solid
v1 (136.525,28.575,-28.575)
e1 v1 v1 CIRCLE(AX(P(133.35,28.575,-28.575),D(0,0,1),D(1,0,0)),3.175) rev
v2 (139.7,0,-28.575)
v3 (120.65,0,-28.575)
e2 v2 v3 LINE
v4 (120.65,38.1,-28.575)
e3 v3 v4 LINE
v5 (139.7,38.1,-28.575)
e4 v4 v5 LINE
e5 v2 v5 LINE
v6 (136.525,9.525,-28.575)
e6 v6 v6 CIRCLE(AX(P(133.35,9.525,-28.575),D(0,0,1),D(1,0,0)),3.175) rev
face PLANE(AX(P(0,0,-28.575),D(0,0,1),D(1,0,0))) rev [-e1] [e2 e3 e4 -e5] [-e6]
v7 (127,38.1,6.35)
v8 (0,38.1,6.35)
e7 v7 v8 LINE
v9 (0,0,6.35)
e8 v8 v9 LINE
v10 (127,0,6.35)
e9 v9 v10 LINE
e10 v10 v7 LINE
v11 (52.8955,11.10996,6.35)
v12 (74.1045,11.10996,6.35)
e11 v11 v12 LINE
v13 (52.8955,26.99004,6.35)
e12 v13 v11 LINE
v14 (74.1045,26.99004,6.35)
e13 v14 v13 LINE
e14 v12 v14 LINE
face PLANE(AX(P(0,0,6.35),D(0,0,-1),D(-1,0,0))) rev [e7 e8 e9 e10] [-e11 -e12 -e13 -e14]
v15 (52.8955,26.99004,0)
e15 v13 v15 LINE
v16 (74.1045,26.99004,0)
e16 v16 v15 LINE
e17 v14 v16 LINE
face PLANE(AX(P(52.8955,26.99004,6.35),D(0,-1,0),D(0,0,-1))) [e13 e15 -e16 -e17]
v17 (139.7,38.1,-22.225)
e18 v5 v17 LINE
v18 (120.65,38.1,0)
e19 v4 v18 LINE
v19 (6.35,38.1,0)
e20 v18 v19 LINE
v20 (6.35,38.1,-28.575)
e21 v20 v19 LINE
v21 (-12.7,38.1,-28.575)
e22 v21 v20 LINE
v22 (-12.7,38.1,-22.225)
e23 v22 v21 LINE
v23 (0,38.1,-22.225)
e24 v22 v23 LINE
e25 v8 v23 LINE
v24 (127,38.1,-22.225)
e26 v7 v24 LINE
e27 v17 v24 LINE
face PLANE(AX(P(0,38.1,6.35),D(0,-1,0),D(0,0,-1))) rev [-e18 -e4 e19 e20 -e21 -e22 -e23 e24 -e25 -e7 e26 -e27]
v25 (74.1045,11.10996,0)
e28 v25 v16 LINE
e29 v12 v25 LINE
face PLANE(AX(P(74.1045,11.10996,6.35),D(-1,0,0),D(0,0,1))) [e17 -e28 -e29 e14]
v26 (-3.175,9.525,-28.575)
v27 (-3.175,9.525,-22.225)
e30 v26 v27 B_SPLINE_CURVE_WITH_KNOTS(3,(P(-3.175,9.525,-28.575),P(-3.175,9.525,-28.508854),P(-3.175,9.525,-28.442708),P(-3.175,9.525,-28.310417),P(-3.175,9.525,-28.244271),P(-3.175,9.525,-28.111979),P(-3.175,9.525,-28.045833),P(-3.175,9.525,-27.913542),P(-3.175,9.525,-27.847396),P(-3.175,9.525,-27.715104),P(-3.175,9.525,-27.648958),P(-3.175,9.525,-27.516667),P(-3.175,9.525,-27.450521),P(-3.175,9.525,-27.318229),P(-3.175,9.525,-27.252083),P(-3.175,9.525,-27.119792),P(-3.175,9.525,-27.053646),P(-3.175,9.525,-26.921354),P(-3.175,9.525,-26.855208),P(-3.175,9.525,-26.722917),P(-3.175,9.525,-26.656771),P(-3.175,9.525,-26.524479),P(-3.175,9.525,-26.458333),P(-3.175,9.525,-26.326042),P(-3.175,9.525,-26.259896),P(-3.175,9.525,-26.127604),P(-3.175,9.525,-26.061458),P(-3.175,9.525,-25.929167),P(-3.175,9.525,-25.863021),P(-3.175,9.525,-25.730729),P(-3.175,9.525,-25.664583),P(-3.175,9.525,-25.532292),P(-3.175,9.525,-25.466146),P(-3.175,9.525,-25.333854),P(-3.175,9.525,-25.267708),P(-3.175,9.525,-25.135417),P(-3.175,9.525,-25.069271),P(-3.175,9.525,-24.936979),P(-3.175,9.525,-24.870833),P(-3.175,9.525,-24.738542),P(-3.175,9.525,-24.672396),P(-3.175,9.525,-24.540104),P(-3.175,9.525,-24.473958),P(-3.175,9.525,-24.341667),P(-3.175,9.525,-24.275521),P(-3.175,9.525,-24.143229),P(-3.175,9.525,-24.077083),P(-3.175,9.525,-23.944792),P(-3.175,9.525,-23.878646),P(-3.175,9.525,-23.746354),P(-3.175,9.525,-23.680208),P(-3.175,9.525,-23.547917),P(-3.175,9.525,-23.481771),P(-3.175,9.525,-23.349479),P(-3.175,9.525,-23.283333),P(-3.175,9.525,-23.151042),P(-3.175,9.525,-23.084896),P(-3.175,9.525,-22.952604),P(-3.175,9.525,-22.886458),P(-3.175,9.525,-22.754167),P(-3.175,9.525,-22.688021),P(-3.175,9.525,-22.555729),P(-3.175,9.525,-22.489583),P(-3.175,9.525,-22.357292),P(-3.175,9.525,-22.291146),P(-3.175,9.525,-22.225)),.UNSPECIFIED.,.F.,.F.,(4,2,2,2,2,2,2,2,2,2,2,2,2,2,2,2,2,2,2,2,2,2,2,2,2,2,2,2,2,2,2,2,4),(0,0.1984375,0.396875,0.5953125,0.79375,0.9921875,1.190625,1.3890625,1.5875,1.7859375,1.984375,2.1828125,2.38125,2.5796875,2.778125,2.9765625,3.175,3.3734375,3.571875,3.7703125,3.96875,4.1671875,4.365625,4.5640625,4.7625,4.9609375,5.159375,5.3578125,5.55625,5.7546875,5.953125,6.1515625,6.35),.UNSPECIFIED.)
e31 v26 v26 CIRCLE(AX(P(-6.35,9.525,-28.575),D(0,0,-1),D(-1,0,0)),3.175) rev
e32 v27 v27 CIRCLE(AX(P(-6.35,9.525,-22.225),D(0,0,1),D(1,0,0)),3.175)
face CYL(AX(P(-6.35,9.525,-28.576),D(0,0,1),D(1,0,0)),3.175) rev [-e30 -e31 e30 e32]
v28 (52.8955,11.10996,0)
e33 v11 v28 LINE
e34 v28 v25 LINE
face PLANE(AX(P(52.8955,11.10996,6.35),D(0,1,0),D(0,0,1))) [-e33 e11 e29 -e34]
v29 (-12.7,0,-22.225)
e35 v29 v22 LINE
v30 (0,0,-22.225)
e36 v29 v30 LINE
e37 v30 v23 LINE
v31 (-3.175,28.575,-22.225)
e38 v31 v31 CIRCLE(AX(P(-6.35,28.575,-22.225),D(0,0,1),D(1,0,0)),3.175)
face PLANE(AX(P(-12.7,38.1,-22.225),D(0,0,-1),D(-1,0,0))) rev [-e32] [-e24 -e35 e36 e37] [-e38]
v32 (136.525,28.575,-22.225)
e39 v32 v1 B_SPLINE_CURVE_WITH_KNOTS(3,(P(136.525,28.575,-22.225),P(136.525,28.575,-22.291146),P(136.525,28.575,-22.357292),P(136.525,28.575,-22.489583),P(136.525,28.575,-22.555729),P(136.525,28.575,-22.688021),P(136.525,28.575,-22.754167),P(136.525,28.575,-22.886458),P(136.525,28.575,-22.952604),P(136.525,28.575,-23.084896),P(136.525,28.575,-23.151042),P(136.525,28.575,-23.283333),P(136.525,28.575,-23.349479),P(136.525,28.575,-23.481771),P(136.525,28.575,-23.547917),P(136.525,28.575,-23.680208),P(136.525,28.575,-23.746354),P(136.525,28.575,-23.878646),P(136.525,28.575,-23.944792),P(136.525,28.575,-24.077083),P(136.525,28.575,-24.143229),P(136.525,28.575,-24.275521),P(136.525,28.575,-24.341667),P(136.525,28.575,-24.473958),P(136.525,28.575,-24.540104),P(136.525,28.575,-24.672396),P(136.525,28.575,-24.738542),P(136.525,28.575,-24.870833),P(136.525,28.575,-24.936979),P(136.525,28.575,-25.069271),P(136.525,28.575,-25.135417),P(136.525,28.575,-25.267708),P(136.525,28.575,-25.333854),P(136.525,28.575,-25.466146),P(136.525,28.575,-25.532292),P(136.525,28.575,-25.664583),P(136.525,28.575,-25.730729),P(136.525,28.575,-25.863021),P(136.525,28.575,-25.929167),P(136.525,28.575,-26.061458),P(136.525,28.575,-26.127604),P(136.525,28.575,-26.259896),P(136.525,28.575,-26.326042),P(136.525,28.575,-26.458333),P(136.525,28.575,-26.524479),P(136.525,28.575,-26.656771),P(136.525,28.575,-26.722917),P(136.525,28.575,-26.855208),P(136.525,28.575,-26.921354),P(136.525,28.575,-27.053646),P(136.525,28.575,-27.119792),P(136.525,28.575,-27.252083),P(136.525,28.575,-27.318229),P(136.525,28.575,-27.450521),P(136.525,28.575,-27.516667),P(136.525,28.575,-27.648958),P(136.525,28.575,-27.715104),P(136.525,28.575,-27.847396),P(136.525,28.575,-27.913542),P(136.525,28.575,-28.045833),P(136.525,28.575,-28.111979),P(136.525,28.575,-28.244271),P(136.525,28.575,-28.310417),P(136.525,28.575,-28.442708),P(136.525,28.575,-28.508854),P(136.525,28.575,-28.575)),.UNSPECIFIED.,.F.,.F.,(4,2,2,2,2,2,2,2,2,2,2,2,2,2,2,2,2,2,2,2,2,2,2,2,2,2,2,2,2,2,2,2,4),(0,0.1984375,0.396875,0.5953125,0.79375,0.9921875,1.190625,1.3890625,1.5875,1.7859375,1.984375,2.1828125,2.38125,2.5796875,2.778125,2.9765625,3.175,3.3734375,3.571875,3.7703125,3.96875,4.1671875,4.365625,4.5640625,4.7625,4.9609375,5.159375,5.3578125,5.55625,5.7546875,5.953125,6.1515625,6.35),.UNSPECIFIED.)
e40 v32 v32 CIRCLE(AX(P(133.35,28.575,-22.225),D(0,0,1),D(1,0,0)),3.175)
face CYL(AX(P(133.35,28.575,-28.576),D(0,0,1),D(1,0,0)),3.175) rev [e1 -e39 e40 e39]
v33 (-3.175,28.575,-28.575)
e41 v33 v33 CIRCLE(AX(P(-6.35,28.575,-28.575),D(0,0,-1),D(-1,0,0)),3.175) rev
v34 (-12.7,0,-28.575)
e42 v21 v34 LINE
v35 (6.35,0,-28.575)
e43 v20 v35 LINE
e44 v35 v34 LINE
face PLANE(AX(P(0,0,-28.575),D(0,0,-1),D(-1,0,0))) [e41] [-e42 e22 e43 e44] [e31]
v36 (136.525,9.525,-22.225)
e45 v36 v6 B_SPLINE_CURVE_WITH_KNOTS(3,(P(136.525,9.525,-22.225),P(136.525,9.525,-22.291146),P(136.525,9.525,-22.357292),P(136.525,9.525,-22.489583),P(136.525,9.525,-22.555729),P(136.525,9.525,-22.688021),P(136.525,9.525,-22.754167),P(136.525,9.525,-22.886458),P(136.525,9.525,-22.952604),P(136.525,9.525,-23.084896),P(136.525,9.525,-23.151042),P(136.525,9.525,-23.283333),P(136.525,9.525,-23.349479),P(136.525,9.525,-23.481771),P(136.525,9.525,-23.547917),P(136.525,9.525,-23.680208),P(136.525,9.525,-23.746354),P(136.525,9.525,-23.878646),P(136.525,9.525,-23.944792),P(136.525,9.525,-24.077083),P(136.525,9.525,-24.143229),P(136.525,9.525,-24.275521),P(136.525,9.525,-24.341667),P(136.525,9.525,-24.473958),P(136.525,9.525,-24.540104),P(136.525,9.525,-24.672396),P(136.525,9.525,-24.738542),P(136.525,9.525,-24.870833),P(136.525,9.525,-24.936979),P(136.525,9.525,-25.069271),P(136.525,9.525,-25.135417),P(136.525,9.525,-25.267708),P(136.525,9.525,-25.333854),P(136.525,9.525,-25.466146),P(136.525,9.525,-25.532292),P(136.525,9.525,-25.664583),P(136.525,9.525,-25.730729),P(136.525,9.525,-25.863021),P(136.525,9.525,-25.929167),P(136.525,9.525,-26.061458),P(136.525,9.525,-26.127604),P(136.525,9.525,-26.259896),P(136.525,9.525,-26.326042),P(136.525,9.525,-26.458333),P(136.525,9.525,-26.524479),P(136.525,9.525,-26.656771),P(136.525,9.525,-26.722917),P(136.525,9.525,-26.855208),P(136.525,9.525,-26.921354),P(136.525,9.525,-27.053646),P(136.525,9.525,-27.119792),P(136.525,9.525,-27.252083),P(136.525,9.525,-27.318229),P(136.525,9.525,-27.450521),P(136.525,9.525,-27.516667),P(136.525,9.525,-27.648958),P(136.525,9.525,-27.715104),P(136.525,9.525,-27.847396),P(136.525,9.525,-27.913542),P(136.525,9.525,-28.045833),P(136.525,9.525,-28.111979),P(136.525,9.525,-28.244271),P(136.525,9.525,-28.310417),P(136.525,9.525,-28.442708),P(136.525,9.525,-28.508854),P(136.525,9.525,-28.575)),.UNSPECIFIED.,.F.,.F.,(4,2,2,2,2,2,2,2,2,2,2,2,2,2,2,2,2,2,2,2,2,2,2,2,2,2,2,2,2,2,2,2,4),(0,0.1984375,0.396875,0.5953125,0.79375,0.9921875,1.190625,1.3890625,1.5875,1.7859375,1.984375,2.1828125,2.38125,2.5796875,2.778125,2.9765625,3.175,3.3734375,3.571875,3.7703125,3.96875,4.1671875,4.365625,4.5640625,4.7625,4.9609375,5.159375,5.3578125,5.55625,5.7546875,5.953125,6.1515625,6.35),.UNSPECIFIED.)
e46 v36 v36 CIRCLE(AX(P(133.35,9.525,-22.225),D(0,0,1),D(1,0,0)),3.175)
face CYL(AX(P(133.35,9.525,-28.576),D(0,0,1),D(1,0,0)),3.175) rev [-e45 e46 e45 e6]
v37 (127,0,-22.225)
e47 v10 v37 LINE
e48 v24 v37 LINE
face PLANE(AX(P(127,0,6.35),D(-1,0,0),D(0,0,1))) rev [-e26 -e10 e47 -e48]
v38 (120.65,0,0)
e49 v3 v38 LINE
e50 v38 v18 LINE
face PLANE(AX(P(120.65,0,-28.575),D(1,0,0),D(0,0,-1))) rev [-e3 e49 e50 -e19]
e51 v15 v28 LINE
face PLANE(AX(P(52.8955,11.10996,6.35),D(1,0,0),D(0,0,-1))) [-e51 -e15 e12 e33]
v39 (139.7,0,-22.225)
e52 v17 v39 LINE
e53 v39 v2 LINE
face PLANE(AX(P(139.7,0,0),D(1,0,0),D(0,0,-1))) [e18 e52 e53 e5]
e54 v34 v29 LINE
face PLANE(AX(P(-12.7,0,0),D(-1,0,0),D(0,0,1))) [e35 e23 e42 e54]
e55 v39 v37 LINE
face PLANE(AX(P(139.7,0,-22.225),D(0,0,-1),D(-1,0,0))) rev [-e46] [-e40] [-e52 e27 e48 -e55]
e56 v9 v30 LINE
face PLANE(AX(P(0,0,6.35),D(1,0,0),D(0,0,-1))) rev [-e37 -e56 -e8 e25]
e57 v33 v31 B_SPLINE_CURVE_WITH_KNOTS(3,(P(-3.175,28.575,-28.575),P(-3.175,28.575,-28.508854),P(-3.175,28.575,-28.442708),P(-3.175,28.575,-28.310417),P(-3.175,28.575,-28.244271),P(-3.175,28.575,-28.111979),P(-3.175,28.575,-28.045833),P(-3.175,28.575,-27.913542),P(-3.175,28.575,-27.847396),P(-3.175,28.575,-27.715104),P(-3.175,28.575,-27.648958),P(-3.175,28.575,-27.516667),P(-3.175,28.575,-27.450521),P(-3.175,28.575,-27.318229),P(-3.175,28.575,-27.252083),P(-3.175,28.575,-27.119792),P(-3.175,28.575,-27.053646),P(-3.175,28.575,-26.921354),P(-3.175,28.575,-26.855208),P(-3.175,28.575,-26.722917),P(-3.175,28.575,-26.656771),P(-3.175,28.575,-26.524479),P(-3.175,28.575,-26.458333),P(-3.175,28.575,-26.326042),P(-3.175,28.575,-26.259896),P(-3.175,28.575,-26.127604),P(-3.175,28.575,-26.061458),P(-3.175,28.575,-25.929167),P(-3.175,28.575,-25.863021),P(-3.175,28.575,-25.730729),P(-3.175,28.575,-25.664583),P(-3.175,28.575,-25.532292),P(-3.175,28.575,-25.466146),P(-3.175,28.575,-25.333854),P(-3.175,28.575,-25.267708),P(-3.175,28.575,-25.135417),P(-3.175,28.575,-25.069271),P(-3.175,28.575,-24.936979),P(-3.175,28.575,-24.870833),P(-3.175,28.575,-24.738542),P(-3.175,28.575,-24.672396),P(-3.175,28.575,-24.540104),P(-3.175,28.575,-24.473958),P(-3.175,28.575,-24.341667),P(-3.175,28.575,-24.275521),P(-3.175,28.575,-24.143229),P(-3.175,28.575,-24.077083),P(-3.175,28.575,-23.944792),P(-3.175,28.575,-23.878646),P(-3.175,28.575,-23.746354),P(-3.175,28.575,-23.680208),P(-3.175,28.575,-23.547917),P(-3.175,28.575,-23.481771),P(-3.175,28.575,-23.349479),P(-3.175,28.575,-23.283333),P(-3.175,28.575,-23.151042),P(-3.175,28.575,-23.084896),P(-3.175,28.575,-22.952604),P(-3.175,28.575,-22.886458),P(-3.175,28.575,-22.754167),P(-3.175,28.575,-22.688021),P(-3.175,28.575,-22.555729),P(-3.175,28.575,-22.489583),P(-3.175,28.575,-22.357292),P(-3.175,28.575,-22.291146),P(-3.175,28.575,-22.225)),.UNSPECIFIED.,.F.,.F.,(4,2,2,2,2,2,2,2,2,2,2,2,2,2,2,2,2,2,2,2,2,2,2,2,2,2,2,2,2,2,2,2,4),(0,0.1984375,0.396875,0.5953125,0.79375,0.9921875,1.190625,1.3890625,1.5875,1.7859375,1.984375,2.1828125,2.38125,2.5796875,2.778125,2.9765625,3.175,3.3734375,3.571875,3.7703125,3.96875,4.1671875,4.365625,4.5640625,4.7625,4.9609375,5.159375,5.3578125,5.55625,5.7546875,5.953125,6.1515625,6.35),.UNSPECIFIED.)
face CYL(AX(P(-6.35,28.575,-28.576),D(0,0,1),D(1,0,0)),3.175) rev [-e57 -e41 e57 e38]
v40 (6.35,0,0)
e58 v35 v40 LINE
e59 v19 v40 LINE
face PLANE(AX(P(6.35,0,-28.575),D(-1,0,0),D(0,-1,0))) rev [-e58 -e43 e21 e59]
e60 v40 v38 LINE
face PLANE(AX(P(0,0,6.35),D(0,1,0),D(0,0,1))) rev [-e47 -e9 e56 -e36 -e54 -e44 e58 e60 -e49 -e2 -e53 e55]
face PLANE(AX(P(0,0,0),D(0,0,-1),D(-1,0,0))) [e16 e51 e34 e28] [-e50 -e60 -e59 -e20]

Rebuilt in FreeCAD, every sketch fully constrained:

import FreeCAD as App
import Part
import Sketcher
from FreeCAD import Vector
Q = App.Units.Quantity

doc = App.newDocument("Part")
body = doc.addObject("PartDesign::Body", "Body")

sketch1 = body.newObject("Sketcher::SketchObject", "Sketch")
sketch1.AttachmentSupport = (doc.getObject("XY_Plane"), [""])
sketch1.MapMode = "FlatFace"
sketch1.addGeometry([
    Part.LineSegment(Vector(0, 38, 0), Vector(0, 0, 0)),
    Part.LineSegment(Vector(0, 0, 0), Vector(127, 0, 0)),
    Part.LineSegment(Vector(127, 0, 0), Vector(127, 38, 0)),
    Part.LineSegment(Vector(127, 38, 0), Vector(0, 38, 0)),
    Part.LineSegment(Vector(74, 11, 0), Vector(53, 11, 0)),
    Part.LineSegment(Vector(53, 11, 0), Vector(53, 27, 0)),
    Part.LineSegment(Vector(53, 27, 0), Vector(74, 27, 0)),
    Part.LineSegment(Vector(74, 27, 0), Vector(74, 11, 0)),
], False)
sketch1.addConstraint([
    Sketcher.Constraint("Coincident", 0, 2, 1, 1),
    Sketcher.Constraint("Coincident", 1, 2, 2, 1),
    Sketcher.Constraint("Coincident", 2, 2, 3, 1),
    Sketcher.Constraint("Coincident", 3, 2, 0, 1),
    Sketcher.Constraint("Coincident", 4, 2, 5, 1),
    Sketcher.Constraint("Coincident", 5, 2, 6, 1),
    Sketcher.Constraint("Coincident", 6, 2, 7, 1),
    Sketcher.Constraint("Coincident", 7, 2, 4, 1),
    Sketcher.Constraint("Vertical", 0),
    Sketcher.Constraint("Horizontal", 1),
    Sketcher.Constraint("Vertical", 2),
    Sketcher.Constraint("Horizontal", 3),
    Sketcher.Constraint("Horizontal", 4),
    Sketcher.Constraint("Vertical", 5),
    Sketcher.Constraint("Horizontal", 6),
    Sketcher.Constraint("Vertical", 7),
    Sketcher.Constraint("Coincident", 0, 2, -1, 1),
    Sketcher.Constraint("DistanceX", 1, 1, 1, 2, Q("5 in")),
    Sketcher.Constraint("DistanceY", 0, 2, 0, 1, Q("1.5 in")),
    Sketcher.Constraint("DistanceX", 4, 2, 4, 1, Q("0.835 in")),
    Sketcher.Constraint("DistanceY", 5, 1, 5, 2, Q("0.6252 in")),
    Sketcher.Constraint("DistanceX", -1, 1, 4, 2, Q("2.0825 in")),
    Sketcher.Constraint("DistanceY", -1, 1, 4, 2, Q("0.4374 in")),
])
pad1 = body.newObject("PartDesign::Pad", "Pad")
pad1.Profile = sketch1
pad1.Length = Q("0.25 in")

sketch2 = body.newObject("Sketcher::SketchObject", "Sketch001")
sketch2.AttachmentSupport = (doc.getObject("XY_Plane"), [""])
sketch2.MapMode = "FlatFace"
sketch2.addGeometry([
    Part.LineSegment(Vector(6, 38, 0), Vector(6, 0, 0)),
    Part.LineSegment(Vector(6, 0, 0), Vector(0, 0, 0)),
    Part.LineSegment(Vector(0, 0, 0), Vector(0, 38, 0)),
    Part.LineSegment(Vector(0, 38, 0), Vector(6, 38, 0)),
    Part.LineSegment(Vector(127, 38, 0), Vector(127, 0, 0)),
    Part.LineSegment(Vector(127, 0, 0), Vector(121, 0, 0)),
    Part.LineSegment(Vector(121, 0, 0), Vector(121, 38, 0)),
    Part.LineSegment(Vector(121, 38, 0), Vector(127, 38, 0)),
], False)
sketch2.addConstraint([
    Sketcher.Constraint("Coincident", 0, 2, 1, 1),
    Sketcher.Constraint("Coincident", 1, 2, 2, 1),
    Sketcher.Constraint("Coincident", 2, 2, 3, 1),
    Sketcher.Constraint("Coincident", 3, 2, 0, 1),
    Sketcher.Constraint("Coincident", 4, 2, 5, 1),
    Sketcher.Constraint("Coincident", 5, 2, 6, 1),
    Sketcher.Constraint("Coincident", 6, 2, 7, 1),
    Sketcher.Constraint("Coincident", 7, 2, 4, 1),
    Sketcher.Constraint("Vertical", 0),
    Sketcher.Constraint("Horizontal", 1),
    Sketcher.Constraint("Vertical", 2),
    Sketcher.Constraint("Horizontal", 3),
    Sketcher.Constraint("Vertical", 4),
    Sketcher.Constraint("Horizontal", 5),
    Sketcher.Constraint("Vertical", 6),
    Sketcher.Constraint("Horizontal", 7),
    Sketcher.Constraint("Coincident", 1, 2, -1, 1),
    Sketcher.Constraint("PointOnObject", 4, 2, -1),
    Sketcher.Constraint("Horizontal", 3, 2, 6, 2),
    Sketcher.Constraint("Equal", 3, 5),
    Sketcher.Constraint("DistanceY", 0, 2, 0, 1, Q("1.5 in")),
    Sketcher.Constraint("DistanceX", -1, 1, 4, 2, Q("5 in")),
    Sketcher.Constraint("DistanceX", 1, 2, 1, 1, Q("0.25 in")),
])
pad2 = body.newObject("PartDesign::Pad", "Pad001")
pad2.Profile = sketch2
pad2.Length = Q("1.125 in")
pad2.Reversed = True

sketch3 = body.newObject("Sketcher::SketchObject", "Sketch002")
sketch3.AttachmentSupport = (doc.getObject("YZ_Plane"), [""])
sketch3.MapMode = "FlatFace"
sketch3.AttachmentOffset = App.Placement(Vector(0, 0, 5 * 25.4), App.Rotation())
sketch3.addGeometry([
    Part.LineSegment(Vector(38, -22, 0), Vector(0, -22, 0)),
    Part.LineSegment(Vector(0, -22, 0), Vector(0, -29, 0)),
    Part.LineSegment(Vector(0, -29, 0), Vector(38, -29, 0)),
    Part.LineSegment(Vector(38, -29, 0), Vector(38, -22, 0)),
], False)
sketch3.addConstraint([
    Sketcher.Constraint("Coincident", 0, 2, 1, 1),
    Sketcher.Constraint("Coincident", 1, 2, 2, 1),
    Sketcher.Constraint("Coincident", 2, 2, 3, 1),
    Sketcher.Constraint("Coincident", 3, 2, 0, 1),
    Sketcher.Constraint("Horizontal", 0),
    Sketcher.Constraint("Vertical", 1),
    Sketcher.Constraint("Horizontal", 2),
    Sketcher.Constraint("Vertical", 3),
    Sketcher.Constraint("PointOnObject", 0, 2, -2),
    Sketcher.Constraint("DistanceX", 0, 2, 0, 1, Q("1.5 in")),
    Sketcher.Constraint("DistanceY", 1, 2, 1, 1, Q("0.25 in")),
    Sketcher.Constraint("DistanceY", 0, 2, -1, 1, Q("0.875 in")),
])
pad3 = body.newObject("PartDesign::Pad", "Pad002")
pad3.Profile = sketch3
pad3.Length = Q("0.5 in")

sketch4 = body.newObject("Sketcher::SketchObject", "Sketch003")
sketch4.AttachmentSupport = (doc.getObject("YZ_Plane"), [""])
sketch4.MapMode = "FlatFace"
sketch4.addGeometry([
    Part.LineSegment(Vector(38, -29, 0), Vector(0, -29, 0)),
    Part.LineSegment(Vector(0, -29, 0), Vector(0, -22, 0)),
    Part.LineSegment(Vector(0, -22, 0), Vector(38, -22, 0)),
    Part.LineSegment(Vector(38, -22, 0), Vector(38, -29, 0)),
], False)
sketch4.addConstraint([
    Sketcher.Constraint("Coincident", 0, 2, 1, 1),
    Sketcher.Constraint("Coincident", 1, 2, 2, 1),
    Sketcher.Constraint("Coincident", 2, 2, 3, 1),
    Sketcher.Constraint("Coincident", 3, 2, 0, 1),
    Sketcher.Constraint("Horizontal", 0),
    Sketcher.Constraint("Vertical", 1),
    Sketcher.Constraint("Horizontal", 2),
    Sketcher.Constraint("Vertical", 3),
    Sketcher.Constraint("PointOnObject", 0, 2, -2),
    Sketcher.Constraint("DistanceX", 0, 2, 0, 1, Q("1.5 in")),
    Sketcher.Constraint("DistanceY", 1, 1, 1, 2, Q("0.25 in")),
    Sketcher.Constraint("DistanceY", 0, 2, -1, 1, Q("1.125 in")),
])
pad4 = body.newObject("PartDesign::Pad", "Pad003")
pad4.Profile = sketch4
pad4.Length = Q("0.5 in")
pad4.Reversed = True

sketch5 = body.newObject("Sketcher::SketchObject", "Sketch004")
sketch5.AttachmentSupport = (doc.getObject("XY_Plane"), [""])
sketch5.MapMode = "FlatFace"
sketch5.AttachmentOffset = App.Placement(Vector(0, 0, -0.875 * 25.4), App.Rotation())
sketch5.addGeometry(Part.Circle(Vector(133.3, 28.6, 0), Vector(0, 0, 1), 3.2), False)
sketch5.addConstraint([
    Sketcher.Constraint("Diameter", 0, Q("0.25 in")),
    Sketcher.Constraint("DistanceX", -1, 1, 0, 3, Q("5.25 in")),
    Sketcher.Constraint("DistanceY", -1, 1, 0, 3, Q("1.125 in")),
])
pocket1 = body.newObject("PartDesign::Pocket", "Pocket")
pocket1.Profile = sketch5
pocket1.Type = "UpToFirst"

sketch6 = body.newObject("Sketcher::SketchObject", "Sketch005")
sketch6.AttachmentSupport = (doc.getObject("XY_Plane"), [""])
sketch6.MapMode = "FlatFace"
sketch6.AttachmentOffset = App.Placement(Vector(0, 0, -0.875 * 25.4), App.Rotation())
sketch6.addGeometry(Part.Circle(Vector(133.3, 9.5, 0), Vector(0, 0, 1), 3.2), False)
sketch6.addConstraint([
    Sketcher.Constraint("Diameter", 0, Q("0.25 in")),
    Sketcher.Constraint("DistanceX", -1, 1, 0, 3, Q("5.25 in")),
    Sketcher.Constraint("DistanceY", -1, 1, 0, 3, Q("0.375 in")),
])
pocket2 = body.newObject("PartDesign::Pocket", "Pocket001")
pocket2.Profile = sketch6
pocket2.Type = "UpToFirst"

sketch7 = body.newObject("Sketcher::SketchObject", "Sketch006")
sketch7.AttachmentSupport = (doc.getObject("XY_Plane"), [""])
sketch7.MapMode = "FlatFace"
sketch7.AttachmentOffset = App.Placement(Vector(0, 0, -0.875 * 25.4), App.Rotation())
sketch7.addGeometry(Part.Circle(Vector(-6.3, 28.6, 0), Vector(0, 0, 1), 3.2), False)
sketch7.addConstraint([
    Sketcher.Constraint("Diameter", 0, Q("0.25 in")),
    Sketcher.Constraint("DistanceX", 0, 3, -1, 1, Q("0.25 in")),
    Sketcher.Constraint("DistanceY", -1, 1, 0, 3, Q("1.125 in")),
])
pocket3 = body.newObject("PartDesign::Pocket", "Pocket002")
pocket3.Profile = sketch7
pocket3.Type = "UpToFirst"

sketch8 = body.newObject("Sketcher::SketchObject", "Sketch007")
sketch8.AttachmentSupport = (doc.getObject("XY_Plane"), [""])
sketch8.MapMode = "FlatFace"
sketch8.AttachmentOffset = App.Placement(Vector(0, 0, -0.875 * 25.4), App.Rotation())
sketch8.addGeometry(Part.Circle(Vector(-6.3, 9.5, 0), Vector(0, 0, 1), 3.2), False)
sketch8.addConstraint([
    Sketcher.Constraint("Diameter", 0, Q("0.25 in")),
    Sketcher.Constraint("DistanceX", 0, 3, -1, 1, Q("0.25 in")),
    Sketcher.Constraint("DistanceY", -1, 1, 0, 3, Q("0.375 in")),
])
pocket4 = body.newObject("PartDesign::Pocket", "Pocket003")
pocket4.Profile = sketch8
pocket4.Type = "UpToFirst"

doc.recompute()
